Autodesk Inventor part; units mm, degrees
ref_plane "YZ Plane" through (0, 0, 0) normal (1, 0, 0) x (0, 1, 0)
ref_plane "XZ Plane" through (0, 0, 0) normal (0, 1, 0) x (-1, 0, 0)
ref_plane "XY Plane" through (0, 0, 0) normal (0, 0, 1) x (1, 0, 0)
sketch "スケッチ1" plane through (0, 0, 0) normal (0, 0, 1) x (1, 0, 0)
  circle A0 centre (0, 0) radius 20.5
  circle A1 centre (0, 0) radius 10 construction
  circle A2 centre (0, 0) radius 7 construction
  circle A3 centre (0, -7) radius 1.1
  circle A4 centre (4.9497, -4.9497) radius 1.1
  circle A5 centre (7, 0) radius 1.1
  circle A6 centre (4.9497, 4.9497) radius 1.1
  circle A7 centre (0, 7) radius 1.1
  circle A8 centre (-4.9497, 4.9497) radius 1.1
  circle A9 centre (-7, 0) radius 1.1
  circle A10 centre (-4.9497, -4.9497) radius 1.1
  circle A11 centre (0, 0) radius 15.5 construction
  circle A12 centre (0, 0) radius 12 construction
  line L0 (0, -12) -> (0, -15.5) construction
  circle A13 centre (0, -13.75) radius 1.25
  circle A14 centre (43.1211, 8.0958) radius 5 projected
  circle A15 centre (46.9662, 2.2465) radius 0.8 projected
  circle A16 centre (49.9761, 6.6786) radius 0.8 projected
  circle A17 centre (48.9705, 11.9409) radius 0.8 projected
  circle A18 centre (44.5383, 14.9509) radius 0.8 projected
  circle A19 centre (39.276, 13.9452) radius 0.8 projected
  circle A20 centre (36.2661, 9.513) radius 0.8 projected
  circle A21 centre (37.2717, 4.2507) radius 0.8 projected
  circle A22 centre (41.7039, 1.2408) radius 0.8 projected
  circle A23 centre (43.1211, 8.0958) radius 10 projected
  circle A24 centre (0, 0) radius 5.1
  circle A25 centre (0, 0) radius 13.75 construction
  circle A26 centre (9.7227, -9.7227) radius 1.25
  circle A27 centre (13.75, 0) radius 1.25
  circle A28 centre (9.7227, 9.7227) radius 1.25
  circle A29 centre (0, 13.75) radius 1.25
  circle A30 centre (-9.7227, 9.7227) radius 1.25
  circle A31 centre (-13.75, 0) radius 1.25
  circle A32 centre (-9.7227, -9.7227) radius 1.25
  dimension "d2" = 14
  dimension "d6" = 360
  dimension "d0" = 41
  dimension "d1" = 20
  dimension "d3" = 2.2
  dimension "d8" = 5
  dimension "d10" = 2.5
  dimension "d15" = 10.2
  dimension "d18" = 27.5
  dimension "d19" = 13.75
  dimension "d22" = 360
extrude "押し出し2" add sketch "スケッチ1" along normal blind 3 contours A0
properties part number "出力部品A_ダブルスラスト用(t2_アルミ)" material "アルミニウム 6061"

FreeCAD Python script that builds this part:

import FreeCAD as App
import Part
import Sketcher

V = App.Vector
Q = App.Units.Quantity

doc = App.newDocument("Part")
body = doc.addObject("PartDesign::Body", "Body")

# Sketch on XY plane
sketch1 = doc.addObject("Sketcher::SketchObject", "Sketch")
body.addObject(sketch1)
sketch1.AttachmentSupport = (doc.XY_Plane, [""])
sketch1.MapMode = "FlatFace"
sketch1.addGeometry([
    Part.Circle(V(0, 0, 0), V(0, 0, 1), 20.5),  # 0
    Part.Circle(V(0, -13.8, 0), V(0, 0, 1), 1.2),  # 1
    Part.Circle(V(-9.7, -9.7, 0), V(0, 0, 1), 1.2),  # 2
    Part.Circle(V(-4.9, -4.9, 0), V(0, 0, 1), 1.1),  # 3
    Part.Circle(V(0, -7, 0), V(0, 0, 1), 1.1),  # 4
    Part.Circle(V(9.7, -9.7, 0), V(0, 0, 1), 1.2),  # 5
    Part.Circle(V(4.9, -4.9, 0), V(0, 0, 1), 1.1),  # 6
    Part.Circle(V(-13.8, 0, 0), V(0, 0, 1), 1.2),  # 7
    Part.Circle(V(-7, 0, 0), V(0, 0, 1), 1.1),  # 8
    Part.Circle(V(-4.9, 4.9, 0), V(0, 0, 1), 1.1),  # 9
    Part.Circle(V(-9.7, 9.7, 0), V(0, 0, 1), 1.2),  # 10
    Part.Circle(V(0, 0, 0), V(0, 0, 1), 5.1),  # 11
    Part.Circle(V(7, 0, 0), V(0, 0, 1), 1.1),  # 12
    Part.Circle(V(4.9, 4.9, 0), V(0, 0, 1), 1.1),  # 13
    Part.Circle(V(13.8, 0, 0), V(0, 0, 1), 1.2),  # 14
    Part.Circle(V(0, 7, 0), V(0, 0, 1), 1.1),  # 15
    Part.Circle(V(9.7, 9.7, 0), V(0, 0, 1), 1.2),  # 16
    Part.Circle(V(0, 13.8, 0), V(0, 0, 1), 1.2),  # 17
], False)
sketch1.addConstraint([
    Sketcher.Constraint("Coincident", 0, 3, -1, 1),
    Sketcher.Constraint("Coincident", 11, 3, -1, 1),
    Sketcher.Constraint("Equal", 1, 2),
    Sketcher.Constraint("Equal", 3, 4),
    Sketcher.Constraint("Equal", 2, 5),
    Sketcher.Constraint("Equal", 4, 6),
    Sketcher.Constraint("Equal", 5, 7),
    Sketcher.Constraint("Equal", 6, 8),
    Sketcher.Constraint("Equal", 8, 9),
    Sketcher.Constraint("Equal", 7, 10),
    Sketcher.Constraint("Equal", 9, 12),
    Sketcher.Constraint("Equal", 12, 13),
    Sketcher.Constraint("Equal", 10, 14),
    Sketcher.Constraint("Equal", 13, 15),
    Sketcher.Constraint("Equal", 14, 16),
    Sketcher.Constraint("Equal", 16, 17),
    Sketcher.Constraint("Symmetric", 6, 3, 9, 3, -1, 1),
    Sketcher.Constraint("Symmetric", 5, 3, 10, 3, -1, 1),
    Sketcher.Constraint("Symmetric", 8, 3, 12, 3, -1, 1),
    Sketcher.Constraint("Symmetric", 3, 3, 13, 3, -1, 1),
    Sketcher.Constraint("Symmetric", 7, 3, 14, 3, -1, 1),
    Sketcher.Constraint("Symmetric", 4, 3, 15, 3, -1, 1),
    Sketcher.Constraint("Symmetric", 2, 3, 16, 3, -1, 1),
    Sketcher.Constraint("Symmetric", 1, 3, 17, 3, -1, 1),
    Sketcher.Constraint("Symmetric", 2, 3, 5, 3, -2),
    Sketcher.Constraint("Symmetric", 3, 3, 6, 3, -2),
    Sketcher.Constraint("PointOnObject", 1, 3, -2),
    Sketcher.Constraint("PointOnObject", 4, 3, -2),
    Sketcher.Constraint("PointOnObject", 7, 3, -1),
    Sketcher.Constraint("PointOnObject", 8, 3, -1),
    Sketcher.Constraint("Diameter", 0, Q("41 mm")),
    Sketcher.Constraint("Diameter", 1, Q("2.5 mm")),
    Sketcher.Constraint("Diameter", 3, Q("2.2 mm")),
    Sketcher.Constraint("Diameter", 11, Q("10.2 mm")),
    Sketcher.Constraint("DistanceY", 1, 3, -1, 1, Q("13.75 mm")),
    Sketcher.Constraint("DistanceX", 7, 3, -1, 1, Q("13.75 mm")),
    Sketcher.Constraint("DistanceY", 4, 3, -1, 1, Q("7 mm")),
    Sketcher.Constraint("DistanceX", 8, 3, -1, 1, Q("7 mm")),
    Sketcher.Constraint("DistanceX", 2, 3, 3, 3, Q("4.773 mm")),
    Sketcher.Constraint("DistanceY", 2, 3, 3, 3, Q("4.773 mm")),
    Sketcher.Constraint("DistanceX", 2, 3, -1, 1, Q("9.7227 mm")),
    Sketcher.Constraint("DistanceY", 2, 3, -1, 1, Q("9.7227 mm")),
])
pad1 = doc.addObject("PartDesign::Pad", "Pad")
body.addObject(pad1)
pad1.Profile = sketch1
pad1.Length = 3

doc.recompute()
